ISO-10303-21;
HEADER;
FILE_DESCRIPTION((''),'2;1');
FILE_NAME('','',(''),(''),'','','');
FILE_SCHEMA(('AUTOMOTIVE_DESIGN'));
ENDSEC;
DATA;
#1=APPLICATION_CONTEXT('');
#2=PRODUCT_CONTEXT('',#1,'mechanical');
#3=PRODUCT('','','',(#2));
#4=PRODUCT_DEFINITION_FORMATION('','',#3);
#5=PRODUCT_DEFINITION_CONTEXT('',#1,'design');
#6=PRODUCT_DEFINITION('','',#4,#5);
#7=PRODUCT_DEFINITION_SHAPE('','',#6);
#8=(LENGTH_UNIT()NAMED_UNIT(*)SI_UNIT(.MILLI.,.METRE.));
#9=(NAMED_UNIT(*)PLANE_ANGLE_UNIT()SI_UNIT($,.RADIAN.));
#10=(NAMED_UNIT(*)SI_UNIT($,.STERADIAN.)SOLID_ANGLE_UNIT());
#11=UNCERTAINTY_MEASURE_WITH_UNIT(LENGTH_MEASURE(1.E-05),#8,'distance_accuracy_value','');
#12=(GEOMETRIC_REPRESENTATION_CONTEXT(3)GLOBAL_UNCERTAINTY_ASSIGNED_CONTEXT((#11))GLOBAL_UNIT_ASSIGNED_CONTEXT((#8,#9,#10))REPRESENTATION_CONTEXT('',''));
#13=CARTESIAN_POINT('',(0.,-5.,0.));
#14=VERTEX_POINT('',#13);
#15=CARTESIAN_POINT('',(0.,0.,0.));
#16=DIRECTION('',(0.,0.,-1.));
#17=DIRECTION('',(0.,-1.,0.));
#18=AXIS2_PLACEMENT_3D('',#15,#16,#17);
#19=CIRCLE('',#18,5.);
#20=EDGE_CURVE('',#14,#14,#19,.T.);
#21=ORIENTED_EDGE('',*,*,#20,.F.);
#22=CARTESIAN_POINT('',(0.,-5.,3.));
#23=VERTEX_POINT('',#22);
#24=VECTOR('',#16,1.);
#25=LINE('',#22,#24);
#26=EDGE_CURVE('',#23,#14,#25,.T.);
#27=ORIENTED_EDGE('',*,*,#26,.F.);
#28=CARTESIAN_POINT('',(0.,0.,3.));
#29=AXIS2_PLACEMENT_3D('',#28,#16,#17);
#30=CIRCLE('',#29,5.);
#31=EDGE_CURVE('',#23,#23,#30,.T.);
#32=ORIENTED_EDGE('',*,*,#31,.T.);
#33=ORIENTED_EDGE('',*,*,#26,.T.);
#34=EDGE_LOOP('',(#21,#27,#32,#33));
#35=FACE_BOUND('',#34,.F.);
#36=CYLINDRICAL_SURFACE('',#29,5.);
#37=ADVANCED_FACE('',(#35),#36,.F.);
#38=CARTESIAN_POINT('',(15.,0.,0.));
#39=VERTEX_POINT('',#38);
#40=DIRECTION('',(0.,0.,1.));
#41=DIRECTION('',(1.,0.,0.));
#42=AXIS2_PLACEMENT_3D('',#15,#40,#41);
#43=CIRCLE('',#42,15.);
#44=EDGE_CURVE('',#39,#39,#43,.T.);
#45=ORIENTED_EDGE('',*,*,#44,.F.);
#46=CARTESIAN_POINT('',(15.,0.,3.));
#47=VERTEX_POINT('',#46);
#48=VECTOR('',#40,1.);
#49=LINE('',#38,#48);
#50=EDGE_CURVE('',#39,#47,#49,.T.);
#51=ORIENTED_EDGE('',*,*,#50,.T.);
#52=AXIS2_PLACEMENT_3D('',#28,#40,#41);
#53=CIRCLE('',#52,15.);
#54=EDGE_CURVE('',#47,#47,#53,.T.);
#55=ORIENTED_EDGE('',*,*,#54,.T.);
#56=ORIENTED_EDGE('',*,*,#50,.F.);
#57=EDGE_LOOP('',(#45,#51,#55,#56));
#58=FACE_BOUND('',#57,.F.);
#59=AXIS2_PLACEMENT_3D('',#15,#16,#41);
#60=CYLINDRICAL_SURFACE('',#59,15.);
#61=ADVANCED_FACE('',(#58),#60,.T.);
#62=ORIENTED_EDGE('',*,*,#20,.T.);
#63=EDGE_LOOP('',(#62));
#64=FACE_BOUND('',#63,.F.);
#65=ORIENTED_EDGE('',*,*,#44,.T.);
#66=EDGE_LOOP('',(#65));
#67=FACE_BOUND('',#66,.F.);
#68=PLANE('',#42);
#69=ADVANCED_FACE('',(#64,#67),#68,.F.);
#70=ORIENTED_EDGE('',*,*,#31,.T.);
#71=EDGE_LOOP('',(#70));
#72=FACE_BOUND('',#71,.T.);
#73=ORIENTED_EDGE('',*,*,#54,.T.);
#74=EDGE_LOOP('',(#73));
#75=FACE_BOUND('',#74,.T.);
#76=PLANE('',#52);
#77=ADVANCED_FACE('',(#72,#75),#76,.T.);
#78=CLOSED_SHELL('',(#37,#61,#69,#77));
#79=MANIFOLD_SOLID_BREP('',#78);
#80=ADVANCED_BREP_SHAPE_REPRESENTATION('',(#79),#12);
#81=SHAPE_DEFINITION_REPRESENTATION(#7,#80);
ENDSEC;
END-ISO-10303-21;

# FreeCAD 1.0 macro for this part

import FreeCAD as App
import Part
import Sketcher

V = App.Vector

doc = App.newDocument("Part")
params = doc.addObject("Spreadsheet::Sheet", "Params")
for row, (alias, value) in enumerate([
    ("sketch1_diameter", "30 mm"),
    ("pad1_length", "3 mm"),
    ("sketch2_diameter", "10 mm"),
    ("hole_diameter", "10 mm"),
], start=1):
    params.set(f"A{row}", alias)
    params.set(f"B{row}", "=" + value)
    params.setAlias(f"B{row}", alias)

body = doc.addObject("PartDesign::Body", "Body")

sketch1 = doc.addObject("Sketcher::SketchObject", "Sketch")
body.addObject(sketch1)
sketch1.AttachmentSupport = (doc.XY_Plane, [""])
sketch1.MapMode = "FlatFace"
sketch1.addGeometry(Part.Circle(V(0, 0, 0), V(0, 0, 1), 15), False)
sketch1.addConstraint([
    Sketcher.Constraint("Coincident", 0, 3, -1, 1),
    Sketcher.Constraint("Diameter", 0, 30.0),
])
sketch1.setExpression("Constraints[1]", "Params.sketch1_diameter")
pad1 = doc.addObject("PartDesign::Pad", "Pad")
body.addObject(pad1)
pad1.Profile = sketch1
pad1.setExpression("Length", "Params.pad1_length")

sketch2 = doc.addObject("Sketcher::SketchObject", "Sketch001")
body.addObject(sketch2)
sketch2.AttachmentSupport = (doc.XY_Plane, [""])
sketch2.MapMode = "FlatFace"
sketch2.AttachmentOffset = App.Placement(V(0, 0, 3), App.Rotation())
sketch2.addGeometry(Part.Circle(V(0, 0, 0), V(0, 0, 1), 5), False)
sketch2.addConstraint([
    Sketcher.Constraint("Coincident", 0, 3, -1, 1),
    Sketcher.Constraint("Diameter", 0, 10.0),
])
sketch2.setExpression("Constraints[1]", "Params.sketch2_diameter")
doc.recompute()
hole = doc.addObject("PartDesign::Hole", "Hole")
body.addObject(hole)
hole.Profile = sketch2
hole.ThreadType = "None"
hole.setExpression("Diameter", "Params.hole_diameter")
hole.DepthType = "ThroughAll"

doc.recompute()
